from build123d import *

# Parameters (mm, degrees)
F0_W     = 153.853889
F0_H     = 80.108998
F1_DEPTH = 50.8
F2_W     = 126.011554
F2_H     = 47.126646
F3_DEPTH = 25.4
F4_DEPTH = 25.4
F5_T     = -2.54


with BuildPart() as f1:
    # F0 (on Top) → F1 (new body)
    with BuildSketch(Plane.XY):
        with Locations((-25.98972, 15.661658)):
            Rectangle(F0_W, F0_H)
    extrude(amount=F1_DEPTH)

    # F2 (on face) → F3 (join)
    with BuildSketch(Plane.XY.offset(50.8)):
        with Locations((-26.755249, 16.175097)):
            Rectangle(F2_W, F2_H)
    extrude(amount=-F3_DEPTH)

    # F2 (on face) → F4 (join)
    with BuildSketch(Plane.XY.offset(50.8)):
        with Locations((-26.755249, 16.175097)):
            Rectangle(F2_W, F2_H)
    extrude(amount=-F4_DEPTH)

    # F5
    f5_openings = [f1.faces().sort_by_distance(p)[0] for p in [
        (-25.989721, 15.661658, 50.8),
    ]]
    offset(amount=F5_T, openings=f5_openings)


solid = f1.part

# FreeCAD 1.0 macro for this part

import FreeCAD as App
import Part
import Sketcher
from FreeCAD import Vector
Q = App.Units.Quantity


def faces_at(feature, points):
    """Names of the faces that lie closest to the given points."""
    faces = feature.Shape.Faces
    near = lambda p: min(range(len(faces)), key=lambda i: faces[i].distToShape(Part.Vertex(*p))[0])
    return sorted({f"Face{near(p) + 1}" for p in points})

doc = App.newDocument("Part")
params = doc.addObject("Spreadsheet::Sheet", "Params")
for row, (alias, value) in enumerate([
    ("pad1_length", "2 in"),
    ("pad2_length", "1 in"),
    ("pad3_length", "1 in"),
    ("thickness_wall", "0.1 in"),
], start=1):
    params.set(f"A{row}", alias)
    params.set(f"B{row}", "=" + value)
    params.setAlias(f"B{row}", alias)

body = doc.addObject("PartDesign::Body", "Body")

# Sketch on XY plane
sketch1 = body.newObject("Sketcher::SketchObject", "Sketch")
sketch1.AttachmentSupport = (doc.getObject("XY_Plane"), [""])
sketch1.MapMode = "FlatFace"
sketch1.addGeometry(Part.LineSegment(Vector(-103, 56, 0), Vector(-103, -24, 0)), False)
sketch1.addGeometry(Part.LineSegment(Vector(-103, -24, 0), Vector(51, -24, 0)), False)
sketch1.addGeometry(Part.LineSegment(Vector(51, -24, 0), Vector(51, 56, 0)), False)
sketch1.addGeometry(Part.LineSegment(Vector(51, 56, 0), Vector(-103, 56, 0)), False)
sketch1.addConstraint(Sketcher.Constraint("Coincident", 0, 2, 1, 1))
sketch1.addConstraint(Sketcher.Constraint("Coincident", 1, 2, 2, 1))
sketch1.addConstraint(Sketcher.Constraint("Coincident", 2, 2, 3, 1))
sketch1.addConstraint(Sketcher.Constraint("Coincident", 3, 2, 0, 1))
sketch1.addConstraint(Sketcher.Constraint("Vertical", 0))
sketch1.addConstraint(Sketcher.Constraint("Horizontal", 1))
sketch1.addConstraint(Sketcher.Constraint("Vertical", 2))
sketch1.addConstraint(Sketcher.Constraint("Horizontal", 3))
sketch1.addConstraint(Sketcher.Constraint("DistanceY", 0, 2, 0, 1, Q("80.108998 mm")))
sketch1.addConstraint(Sketcher.Constraint("DistanceX", 1, 1, 1, 2, Q("153.853889 mm")))
sketch1.addConstraint(Sketcher.Constraint("DistanceY", 0, 2, -1, 1, Q("24.392841 mm")))
sketch1.addConstraint(Sketcher.Constraint("DistanceX", 0, 2, -1, 1, Q("102.916664 mm")))
pad1 = body.newObject("PartDesign::Pad", "Pad")
pad1.Profile = sketch1
pad1.setExpression("Length", "Params.pad1_length")

# Sketch on XY plane
sketch2 = body.newObject("Sketcher::SketchObject", "Sketch001")
sketch2.AttachmentSupport = (doc.getObject("XY_Plane"), [""])
sketch2.MapMode = "FlatFace"
sketch2.AttachmentOffset = App.Placement(Vector(0, 0, 2 * 25.4), App.Rotation())
sketch2.addGeometry(Part.LineSegment(Vector(-90, 40, 0), Vector(-90, -7, 0)), False)
sketch2.addGeometry(Part.LineSegment(Vector(-90, -7, 0), Vector(36, -7, 0)), False)
sketch2.addGeometry(Part.LineSegment(Vector(36, -7, 0), Vector(36, 40, 0)), False)
sketch2.addGeometry(Part.LineSegment(Vector(36, 40, 0), Vector(-90, 40, 0)), False)
sketch2.addConstraint(Sketcher.Constraint("Coincident", 0, 2, 1, 1))
sketch2.addConstraint(Sketcher.Constraint("Coincident", 1, 2, 2, 1))
sketch2.addConstraint(Sketcher.Constraint("Coincident", 2, 2, 3, 1))
sketch2.addConstraint(Sketcher.Constraint("Coincident", 3, 2, 0, 1))
sketch2.addConstraint(Sketcher.Constraint("Vertical", 0))
sketch2.addConstraint(Sketcher.Constraint("Horizontal", 1))
sketch2.addConstraint(Sketcher.Constraint("Vertical", 2))
sketch2.addConstraint(Sketcher.Constraint("Horizontal", 3))
sketch2.addConstraint(Sketcher.Constraint("DistanceX", 1, 1, 1, 2, Q("126.011554 mm")))
sketch2.addConstraint(Sketcher.Constraint("DistanceY", 0, 2, 0, 1, Q("47.126646 mm")))
sketch2.addConstraint(Sketcher.Constraint("DistanceX", -1, 1, 1, 2, Q("36.250528 mm")))
sketch2.addConstraint(Sketcher.Constraint("DistanceY", -1, 1, 2, 2, Q("39.73842 mm")))
pad2 = body.newObject("PartDesign::Pad", "Pad001")
pad2.Profile = sketch2
pad2.setExpression("Length", "Params.pad2_length")
pad2.Reversed = True

# Sketch on XY plane
sketch3 = body.newObject("Sketcher::SketchObject", "Sketch002")
sketch3.AttachmentSupport = (doc.getObject("XY_Plane"), [""])
sketch3.MapMode = "FlatFace"
sketch3.AttachmentOffset = App.Placement(Vector(0, 0, 2 * 25.4), App.Rotation())
sketch3.addGeometry(Part.LineSegment(Vector(-90, 40, 0), Vector(-90, -7, 0)), False)
sketch3.addGeometry(Part.LineSegment(Vector(-90, -7, 0), Vector(36, -7, 0)), False)
sketch3.addGeometry(Part.LineSegment(Vector(36, -7, 0), Vector(36, 40, 0)), False)
sketch3.addGeometry(Part.LineSegment(Vector(36, 40, 0), Vector(-90, 40, 0)), False)
sketch3.addConstraint(Sketcher.Constraint("Coincident", 0, 2, 1, 1))
sketch3.addConstraint(Sketcher.Constraint("Coincident", 1, 2, 2, 1))
sketch3.addConstraint(Sketcher.Constraint("Coincident", 2, 2, 3, 1))
sketch3.addConstraint(Sketcher.Constraint("Coincident", 3, 2, 0, 1))
sketch3.addConstraint(Sketcher.Constraint("Vertical", 0))
sketch3.addConstraint(Sketcher.Constraint("Horizontal", 1))
sketch3.addConstraint(Sketcher.Constraint("Vertical", 2))
sketch3.addConstraint(Sketcher.Constraint("Horizontal", 3))
sketch3.addConstraint(Sketcher.Constraint("DistanceX", 1, 1, 1, 2, Q("126.011554 mm")))
sketch3.addConstraint(Sketcher.Constraint("DistanceY", 0, 2, 0, 1, Q("47.126646 mm")))
sketch3.addConstraint(Sketcher.Constraint("DistanceX", -1, 1, 1, 2, Q("36.250528 mm")))
sketch3.addConstraint(Sketcher.Constraint("DistanceY", -1, 1, 2, 2, Q("39.73842 mm")))
pad3 = body.newObject("PartDesign::Pad", "Pad002")
pad3.Profile = sketch3
pad3.setExpression("Length", "Params.pad3_length")
pad3.Reversed = True
doc.recompute()

thickness = body.newObject("PartDesign::Thickness", "Thickness")
thickness.Base = (pad3, faces_at(pad3, [(-25.99, 15.662, 50.8)]))
thickness.setExpression("Value", "Params.thickness_wall")
thickness.Reversed = True
thickness.Join = "Arc"

doc.recompute()
